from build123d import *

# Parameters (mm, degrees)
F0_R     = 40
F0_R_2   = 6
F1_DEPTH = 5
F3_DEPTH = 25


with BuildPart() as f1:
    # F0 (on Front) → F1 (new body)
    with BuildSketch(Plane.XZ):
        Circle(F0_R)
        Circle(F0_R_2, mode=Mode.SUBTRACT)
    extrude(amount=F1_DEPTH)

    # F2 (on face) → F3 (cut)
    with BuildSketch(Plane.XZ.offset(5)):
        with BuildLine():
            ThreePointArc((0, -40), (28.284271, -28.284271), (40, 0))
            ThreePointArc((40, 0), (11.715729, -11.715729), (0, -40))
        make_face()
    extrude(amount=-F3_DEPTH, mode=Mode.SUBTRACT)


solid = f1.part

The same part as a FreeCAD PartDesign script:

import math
import FreeCAD as App
import Part
import Sketcher

V = App.Vector

doc = App.newDocument("Part")
body = doc.addObject("PartDesign::Body", "Body")

# Sketch on XZ plane
sketch1 = body.newObject("Sketcher::SketchObject", "Sketch")
sketch1.AttachmentSupport = (doc.getObject("XZ_Plane"), [""])
sketch1.MapMode = "FlatFace"
sketch1.addGeometry([
    Part.Circle(V(0, 0, 0), V(0, 0, 1), 40),
    Part.Circle(V(0, 0, 0), V(0, 0, 1), 6),
], False)
sketch1.addConstraint([
    Sketcher.Constraint("Coincident", 0, 3, -1, 1),
    Sketcher.Constraint("Coincident", 1, 3, -1, 1),
    Sketcher.Constraint("Diameter", 0, 80.0),
    Sketcher.Constraint("Diameter", 1, 12.0),
])
pad1 = body.newObject("PartDesign::Pad", "Pad")
pad1.Profile = sketch1
pad1.Length = 5

# Sketch on XZ plane
sketch2 = body.newObject("Sketcher::SketchObject", "Sketch001")
sketch2.AttachmentSupport = (doc.getObject("XZ_Plane"), [""])
sketch2.MapMode = "FlatFace"
sketch2.AttachmentOffset = App.Placement(V(0, 0, 5), App.Rotation())
sketch2.addGeometry([
    Part.ArcOfCircle(Part.Circle(V(-0.000001, 0.000001, 0), V(0, 0, 1), 40.000001), math.radians(-89.999999), math.radians(-0.000001)),
    Part.ArcOfCircle(Part.Circle(V(40.000001, -40.000001, 0), V(0, 0, 1), 40.000001), math.radians(90.000001), math.radians(179.999999)),
], False)
sketch2.addConstraint([
    Sketcher.Constraint("Coincident", 0, 1, 1, 2),
    Sketcher.Constraint("Coincident", 1, 1, 0, 2),
    Sketcher.Constraint("Coincident", 0, 3, -1, 1),
    Sketcher.Constraint("Equal", 0, 1),
    Sketcher.Constraint("PointOnObject", 0, 1, -2),
    Sketcher.Constraint("PointOnObject", 1, 1, -1),
    Sketcher.Constraint("Radius", 0, 40.000001),
])
pocket1 = body.newObject("PartDesign::Pocket", "Pocket")
pocket1.Profile = sketch2
pocket1.Length = 25

doc.recompute()
